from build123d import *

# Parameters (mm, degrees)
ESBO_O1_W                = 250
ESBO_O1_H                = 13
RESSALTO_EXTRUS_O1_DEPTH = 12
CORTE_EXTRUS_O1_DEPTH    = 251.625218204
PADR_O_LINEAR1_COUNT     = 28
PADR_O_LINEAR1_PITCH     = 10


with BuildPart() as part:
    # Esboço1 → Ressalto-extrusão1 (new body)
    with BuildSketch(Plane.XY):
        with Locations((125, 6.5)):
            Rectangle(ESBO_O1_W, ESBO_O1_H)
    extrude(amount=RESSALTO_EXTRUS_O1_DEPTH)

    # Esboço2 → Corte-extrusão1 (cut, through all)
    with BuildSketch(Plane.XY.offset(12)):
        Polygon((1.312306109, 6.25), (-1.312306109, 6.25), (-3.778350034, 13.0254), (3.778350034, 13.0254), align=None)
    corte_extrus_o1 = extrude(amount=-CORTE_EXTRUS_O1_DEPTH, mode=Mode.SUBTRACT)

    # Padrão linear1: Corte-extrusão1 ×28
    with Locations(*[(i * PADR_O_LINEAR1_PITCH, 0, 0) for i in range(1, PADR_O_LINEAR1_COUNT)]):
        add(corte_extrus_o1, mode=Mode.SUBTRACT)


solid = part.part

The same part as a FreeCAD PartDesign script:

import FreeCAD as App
import Part
import Sketcher
from FreeCAD import Vector
Q = App.Units.Quantity

doc = App.newDocument("Part")
body = doc.addObject("PartDesign::Body", "Body")

sketch1 = body.newObject("Sketcher::SketchObject", "Sketch")
sketch1.AttachmentSupport = (doc.getObject("XY_Plane"), [""])
sketch1.MapMode = "FlatFace"
sketch1.addGeometry([
    Part.LineSegment(Vector(0, 13, 0), Vector(0, 0, 0)),
    Part.LineSegment(Vector(0, 0, 0), Vector(250, 0, 0)),
    Part.LineSegment(Vector(250, 0, 0), Vector(250, 13, 0)),
    Part.LineSegment(Vector(250, 13, 0), Vector(0, 13, 0)),
], False)
sketch1.addConstraint([
    Sketcher.Constraint("Coincident", 0, 2, 1, 1),
    Sketcher.Constraint("Coincident", 1, 2, 2, 1),
    Sketcher.Constraint("Coincident", 2, 2, 3, 1),
    Sketcher.Constraint("Coincident", 3, 2, 0, 1),
    Sketcher.Constraint("Vertical", 0),
    Sketcher.Constraint("Horizontal", 1),
    Sketcher.Constraint("Vertical", 2),
    Sketcher.Constraint("Horizontal", 3),
    Sketcher.Constraint("Coincident", 0, 2, -1, 1),
    Sketcher.Constraint("DistanceX", 1, 1, 1, 2, Q("250 mm")),
    Sketcher.Constraint("DistanceY", 0, 2, 0, 1, Q("13 mm")),
])
pad1 = body.newObject("PartDesign::Pad", "Pad")
pad1.Profile = sketch1
pad1.Length = 12

sketch2 = body.newObject("Sketcher::SketchObject", "Sketch001")
sketch2.AttachmentSupport = (doc.getObject("XY_Plane"), [""])
sketch2.MapMode = "FlatFace"
sketch2.AttachmentOffset = App.Placement(Vector(0, 0, 12), App.Rotation())
sketch2.addGeometry([
    Part.LineSegment(Vector(-1.312306, 6.25, 0), Vector(1.312306, 6.25, 0)),
    Part.LineSegment(Vector(1.312306, 6.25, 0), Vector(3.77835, 13.0254, 0)),
    Part.LineSegment(Vector(3.77835, 13.0254, 0), Vector(-3.77835, 13.0254, 0)),
    Part.LineSegment(Vector(-3.77835, 13.0254, 0), Vector(-1.312306, 6.25, 0)),
], False)
sketch2.addConstraint([
    Sketcher.Constraint("Coincident", 0, 2, 1, 1),
    Sketcher.Constraint("Coincident", 1, 2, 2, 1),
    Sketcher.Constraint("Coincident", 2, 2, 3, 1),
    Sketcher.Constraint("Coincident", 3, 2, 0, 1),
    Sketcher.Constraint("Horizontal", 0),
    Sketcher.Constraint("Horizontal", 2),
    Sketcher.Constraint("Equal", 1, 3),
    Sketcher.Constraint("Angle", 1, Q("70 deg")),
    Sketcher.Constraint("DistanceY", -1, 1, 0, 2, Q("6.25 mm")),
    Sketcher.Constraint("DistanceX", 2, 2, 2, 1, Q("7.5567 mm")),
    Sketcher.Constraint("DistanceY", -1, 1, 1, 2, Q("13.0254 mm")),
    Sketcher.Constraint("DistanceX", -1, 1, 1, 2, Q("3.77835 mm")),
])
pocket1 = body.newObject("PartDesign::Pocket", "Pocket")
pocket1.Profile = sketch2
pocket1.Type = "ThroughAll"
doc.recompute()

linearpattern = body.newObject("PartDesign::LinearPattern", "LinearPattern")
linearpattern.Originals = [pocket1]
linearpattern.Direction = (doc.getObject("X_Axis"), [""])
linearpattern.Mode = "offset"
linearpattern.Offset = 10
linearpattern.Occurrences = 28
body.Tip = linearpattern

doc.recompute()
